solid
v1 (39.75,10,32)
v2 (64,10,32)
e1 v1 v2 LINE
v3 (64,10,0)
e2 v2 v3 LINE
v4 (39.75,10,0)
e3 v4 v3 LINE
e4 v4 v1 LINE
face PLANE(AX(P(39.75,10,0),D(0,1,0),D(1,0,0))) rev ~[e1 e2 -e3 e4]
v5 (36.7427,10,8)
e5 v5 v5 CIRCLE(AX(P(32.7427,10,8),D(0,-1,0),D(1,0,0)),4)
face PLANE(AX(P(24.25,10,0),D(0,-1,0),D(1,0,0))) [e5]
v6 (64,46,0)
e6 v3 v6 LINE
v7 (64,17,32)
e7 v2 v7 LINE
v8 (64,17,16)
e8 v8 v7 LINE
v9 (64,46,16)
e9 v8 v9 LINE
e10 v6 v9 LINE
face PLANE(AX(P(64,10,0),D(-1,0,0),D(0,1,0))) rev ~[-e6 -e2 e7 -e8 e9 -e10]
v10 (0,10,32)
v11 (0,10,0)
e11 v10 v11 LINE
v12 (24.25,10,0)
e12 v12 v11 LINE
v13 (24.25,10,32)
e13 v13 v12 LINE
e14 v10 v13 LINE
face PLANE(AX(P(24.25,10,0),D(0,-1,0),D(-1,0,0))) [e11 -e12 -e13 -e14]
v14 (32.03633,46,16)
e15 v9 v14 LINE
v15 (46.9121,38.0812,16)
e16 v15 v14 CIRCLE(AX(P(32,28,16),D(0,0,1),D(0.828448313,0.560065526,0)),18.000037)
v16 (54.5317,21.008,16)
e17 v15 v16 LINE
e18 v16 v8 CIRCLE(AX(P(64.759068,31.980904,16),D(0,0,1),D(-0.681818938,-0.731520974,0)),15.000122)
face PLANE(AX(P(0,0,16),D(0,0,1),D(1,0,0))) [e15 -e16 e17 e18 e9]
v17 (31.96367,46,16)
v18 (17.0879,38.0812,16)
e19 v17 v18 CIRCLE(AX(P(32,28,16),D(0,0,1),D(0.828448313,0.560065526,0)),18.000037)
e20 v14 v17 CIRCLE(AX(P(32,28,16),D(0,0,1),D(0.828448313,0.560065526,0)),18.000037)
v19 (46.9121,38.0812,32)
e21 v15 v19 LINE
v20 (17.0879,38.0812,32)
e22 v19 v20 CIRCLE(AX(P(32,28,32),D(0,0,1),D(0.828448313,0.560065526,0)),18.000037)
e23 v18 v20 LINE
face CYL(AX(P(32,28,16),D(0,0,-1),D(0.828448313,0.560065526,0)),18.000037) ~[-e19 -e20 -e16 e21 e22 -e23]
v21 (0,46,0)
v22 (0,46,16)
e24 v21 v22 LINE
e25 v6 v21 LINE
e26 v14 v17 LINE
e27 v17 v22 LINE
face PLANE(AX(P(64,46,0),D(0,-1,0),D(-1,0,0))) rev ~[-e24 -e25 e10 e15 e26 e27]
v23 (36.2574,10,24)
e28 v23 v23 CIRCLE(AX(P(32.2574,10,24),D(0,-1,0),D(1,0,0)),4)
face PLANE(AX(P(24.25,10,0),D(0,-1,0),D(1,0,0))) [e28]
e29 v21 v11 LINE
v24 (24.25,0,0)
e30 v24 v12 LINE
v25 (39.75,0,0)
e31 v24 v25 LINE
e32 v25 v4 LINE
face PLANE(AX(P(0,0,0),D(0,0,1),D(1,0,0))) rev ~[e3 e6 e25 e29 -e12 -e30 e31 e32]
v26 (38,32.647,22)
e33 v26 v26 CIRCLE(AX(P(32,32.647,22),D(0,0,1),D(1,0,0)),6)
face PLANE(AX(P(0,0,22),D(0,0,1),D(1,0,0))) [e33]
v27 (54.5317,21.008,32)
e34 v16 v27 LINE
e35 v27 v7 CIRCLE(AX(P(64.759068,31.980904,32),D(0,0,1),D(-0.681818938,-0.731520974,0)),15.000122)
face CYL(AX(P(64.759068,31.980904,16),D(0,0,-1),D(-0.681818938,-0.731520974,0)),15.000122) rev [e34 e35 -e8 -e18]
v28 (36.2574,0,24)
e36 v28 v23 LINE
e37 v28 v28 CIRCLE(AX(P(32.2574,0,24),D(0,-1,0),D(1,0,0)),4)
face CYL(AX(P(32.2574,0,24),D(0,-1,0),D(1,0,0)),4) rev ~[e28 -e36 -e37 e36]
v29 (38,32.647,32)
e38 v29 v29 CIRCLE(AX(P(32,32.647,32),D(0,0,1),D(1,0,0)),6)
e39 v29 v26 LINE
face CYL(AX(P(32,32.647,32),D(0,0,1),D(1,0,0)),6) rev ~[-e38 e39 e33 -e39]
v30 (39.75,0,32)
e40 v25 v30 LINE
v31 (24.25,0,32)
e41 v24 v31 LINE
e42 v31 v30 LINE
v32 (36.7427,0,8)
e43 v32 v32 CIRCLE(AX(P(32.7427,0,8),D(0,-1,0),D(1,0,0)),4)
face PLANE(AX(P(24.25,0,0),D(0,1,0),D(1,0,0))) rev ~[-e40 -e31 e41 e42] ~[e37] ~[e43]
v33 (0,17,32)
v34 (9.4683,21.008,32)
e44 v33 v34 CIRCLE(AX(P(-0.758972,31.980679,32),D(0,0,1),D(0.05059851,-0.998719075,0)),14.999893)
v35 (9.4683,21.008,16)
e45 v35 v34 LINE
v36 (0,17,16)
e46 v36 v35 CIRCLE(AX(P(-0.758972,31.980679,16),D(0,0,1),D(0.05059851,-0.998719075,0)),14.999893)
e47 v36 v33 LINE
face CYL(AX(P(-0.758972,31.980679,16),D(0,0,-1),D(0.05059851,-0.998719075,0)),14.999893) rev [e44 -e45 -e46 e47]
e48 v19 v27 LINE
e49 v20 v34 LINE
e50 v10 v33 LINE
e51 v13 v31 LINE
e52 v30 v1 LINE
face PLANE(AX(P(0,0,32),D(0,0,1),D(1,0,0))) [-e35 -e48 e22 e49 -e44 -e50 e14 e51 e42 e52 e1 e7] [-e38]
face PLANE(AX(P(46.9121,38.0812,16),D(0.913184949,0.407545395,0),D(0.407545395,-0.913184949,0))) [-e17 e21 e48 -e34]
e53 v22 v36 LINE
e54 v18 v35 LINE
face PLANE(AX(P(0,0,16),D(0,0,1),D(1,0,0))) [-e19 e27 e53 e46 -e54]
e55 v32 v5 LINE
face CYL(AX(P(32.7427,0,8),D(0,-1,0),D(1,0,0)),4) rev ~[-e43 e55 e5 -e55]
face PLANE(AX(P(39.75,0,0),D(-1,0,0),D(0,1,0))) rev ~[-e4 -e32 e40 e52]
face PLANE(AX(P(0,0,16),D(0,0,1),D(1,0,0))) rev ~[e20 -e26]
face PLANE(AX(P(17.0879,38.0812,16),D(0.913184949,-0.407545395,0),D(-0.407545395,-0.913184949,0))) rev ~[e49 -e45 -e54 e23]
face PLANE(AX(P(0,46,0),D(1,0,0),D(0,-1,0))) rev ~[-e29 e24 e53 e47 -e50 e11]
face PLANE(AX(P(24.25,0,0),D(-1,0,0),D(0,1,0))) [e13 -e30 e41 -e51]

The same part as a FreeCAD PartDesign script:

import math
import FreeCAD as App
import Part
import Sketcher
from FreeCAD import Vector
Q = App.Units.Quantity

doc = App.newDocument("Part")
body = doc.addObject("PartDesign::Body", "Body")

# Sketch on XY plane
sketch1 = body.newObject("Sketcher::SketchObject", "Sketch")
sketch1.AttachmentSupport = (doc.getObject("XY_Plane"), [""])
sketch1.MapMode = "FlatFace"
sketch1.addGeometry([
    Part.LineSegment(Vector(24.25, 10, 0), Vector(24.25, 0, 0)),  # 0
    Part.LineSegment(Vector(24.25, 0, 0), Vector(39.75, 0, 0)),  # 1
    Part.LineSegment(Vector(39.75, 0, 0), Vector(39.75, 10, 0)),  # 2
    Part.LineSegment(Vector(39.75, 10, 0), Vector(64, 10, 0)),  # 3
    Part.LineSegment(Vector(64, 10, 0), Vector(64, 46, 0)),  # 4
    Part.LineSegment(Vector(64, 46, 0), Vector(0, 46, 0)),  # 5
    Part.LineSegment(Vector(0, 46, 0), Vector(0, 10, 0)),  # 6
    Part.LineSegment(Vector(0, 10, 0), Vector(24.25, 10, 0)),  # 7
], False)
sketch1.addConstraint([
    Sketcher.Constraint("Coincident", 0, 2, 1, 1),
    Sketcher.Constraint("Coincident", 1, 2, 2, 1),
    Sketcher.Constraint("Coincident", 2, 2, 3, 1),
    Sketcher.Constraint("Coincident", 3, 2, 4, 1),
    Sketcher.Constraint("Coincident", 4, 2, 5, 1),
    Sketcher.Constraint("Coincident", 5, 2, 6, 1),
    Sketcher.Constraint("Coincident", 6, 2, 7, 1),
    Sketcher.Constraint("Coincident", 7, 2, 0, 1),
    Sketcher.Constraint("Vertical", 0),
    Sketcher.Constraint("Horizontal", 1),
    Sketcher.Constraint("Vertical", 2),
    Sketcher.Constraint("Horizontal", 3),
    Sketcher.Constraint("Vertical", 4),
    Sketcher.Constraint("Horizontal", 5),
    Sketcher.Constraint("Vertical", 6),
    Sketcher.Constraint("Horizontal", 7),
    Sketcher.Constraint("PointOnObject", 0, 2, -1),
    Sketcher.Constraint("PointOnObject", 5, 2, -2),
    Sketcher.Constraint("Horizontal", 3, 2, 6, 2),
    Sketcher.Constraint("Equal", 3, 7),
    Sketcher.Constraint("DistanceX", 5, 2, 5, 1, Q("64 mm")),
    Sketcher.Constraint("DistanceY", 0, 2, 0, 1, Q("10 mm")),
    Sketcher.Constraint("DistanceX", 3, 1, 3, 2, Q("24.25 mm")),
    Sketcher.Constraint("DistanceY", 4, 1, 4, 2, Q("36 mm")),
])
pad1 = body.newObject("PartDesign::Pad", "Pad")
pad1.Profile = sketch1
pad1.Length = 16

# Sketch on XY plane
sketch2 = body.newObject("Sketcher::SketchObject", "Sketch001")
sketch2.AttachmentSupport = (doc.getObject("XY_Plane"), [""])
sketch2.MapMode = "FlatFace"
sketch2.AttachmentOffset = App.Placement(Vector(0, 0, 16), App.Rotation())
sketch2.addGeometry([
    Part.LineSegment(Vector(0, 10, 0), Vector(24.25, 10, 0)),  # 0
    Part.LineSegment(Vector(24.25, 10, 0), Vector(24.25, 0, 0)),  # 1
    Part.LineSegment(Vector(24.25, 0, 0), Vector(39.75, 0, 0)),  # 2
    Part.LineSegment(Vector(39.75, 0, 0), Vector(39.75, 10, 0)),  # 3
    Part.LineSegment(Vector(39.75, 10, 0), Vector(64, 10, 0)),  # 4
    Part.LineSegment(Vector(64, 10, 0), Vector(64, 17, 0)),  # 5
    Part.ArcOfCircle(Part.Circle(Vector(64.759, 31.9808, 0), Vector(0, 0, 1), 15), math.radians(-132.986028), math.radians(-92.900402)),  # 6
    Part.LineSegment(Vector(54.5317, 21.008, 0), Vector(46.9121, 38.0812, 0)),  # 7
    Part.ArcOfCircle(Part.Circle(Vector(32, 28, 0), Vector(0, 0, 1), 18.000037), math.radians(34.060329), math.radians(145.939671)),  # 8
    Part.LineSegment(Vector(17.0879, 38.0812, 0), Vector(9.4683, 21.008, 0)),  # 9
    Part.ArcOfCircle(Part.Circle(Vector(-0.759, 31.9808, 0), Vector(0, 0, 1), 15.000015), math.radians(-87.099598), math.radians(-47.013972)),  # 10
    Part.LineSegment(Vector(0, 17, 0), Vector(0, 10, 0)),  # 11
], False)
sketch2.addConstraint([
    Sketcher.Constraint("Coincident", 0, 2, 1, 1),
    Sketcher.Constraint("Coincident", 1, 2, 2, 1),
    Sketcher.Constraint("Coincident", 2, 2, 3, 1),
    Sketcher.Constraint("Coincident", 3, 2, 4, 1),
    Sketcher.Constraint("Coincident", 4, 2, 5, 1),
    Sketcher.Constraint("Coincident", 5, 2, 6, 2),
    Sketcher.Constraint("Coincident", 6, 1, 7, 1),
    Sketcher.Constraint("Coincident", 7, 2, 8, 1),
    Sketcher.Constraint("Coincident", 8, 2, 9, 1),
    Sketcher.Constraint("Coincident", 9, 2, 10, 2),
    Sketcher.Constraint("Coincident", 10, 1, 11, 1),
    Sketcher.Constraint("Coincident", 11, 2, 0, 1),
    Sketcher.Constraint("Horizontal", 0),
    Sketcher.Constraint("Vertical", 1),
    Sketcher.Constraint("Horizontal", 2),
    Sketcher.Constraint("Vertical", 3),
    Sketcher.Constraint("Horizontal", 4),
    Sketcher.Constraint("Vertical", 5),
    Sketcher.Constraint("Vertical", 11),
    Sketcher.Constraint("Equal", 6, 10),
    Sketcher.Constraint("PointOnObject", 1, 2, -1),
    Sketcher.Constraint("PointOnObject", 10, 1, -2),
    Sketcher.Constraint("Horizontal", 6, 3, 10, 3),
    Sketcher.Constraint("Horizontal", 0, 2, 3, 2),
    Sketcher.Constraint("Horizontal", 7, 2, 8, 2),
    Sketcher.Constraint("Horizontal", 6, 1, 9, 2),
    Sketcher.Constraint("Horizontal", 5, 2, 10, 1),
    Sketcher.Constraint("Equal", 0, 4),
    Sketcher.Constraint("Equal", 7, 9),
    Sketcher.Constraint("Radius", 6, Q("15 mm")),
    Sketcher.Constraint("DistanceY", 5, 1, 5, 2, Q("7 mm")),
    Sketcher.Constraint("Radius", 8, Q("18 mm")),
    Sketcher.Constraint("DistanceY", 1, 2, 1, 1, Q("10 mm")),
    Sketcher.Constraint("DistanceX", 2, 1, 2, 2, Q("15.5 mm")),
    Sketcher.Constraint("DistanceX", -1, 1, 8, 3, Q("32 mm")),
    Sketcher.Constraint("DistanceY", -1, 1, 8, 3, Q("28 mm")),
    Sketcher.Constraint("Angle", 7, Q("114.0507 deg")),
    Sketcher.Constraint("DistanceX", -1, 1, 6, 3, Q("64.759 mm")),
    Sketcher.Constraint("DistanceY", -1, 1, 6, 1, Q("21.008 mm")),
])
pad2 = body.newObject("PartDesign::Pad", "Pad001")
pad2.Profile = sketch2
pad2.Length = 16

# Sketch on XY plane
sketch3 = body.newObject("Sketcher::SketchObject", "Sketch002")
sketch3.AttachmentSupport = (doc.getObject("XY_Plane"), [""])
sketch3.MapMode = "FlatFace"
sketch3.AttachmentOffset = App.Placement(Vector(0, 0, 32), App.Rotation())
sketch3.addGeometry(Part.Circle(Vector(32, 32.647, 0), Vector(0, 0, 1), 6), False)
sketch3.addConstraint([
    Sketcher.Constraint("Diameter", 0, Q("12 mm")),
    Sketcher.Constraint("DistanceX", -1, 1, 0, 3, Q("32 mm")),
    Sketcher.Constraint("DistanceY", -1, 1, 0, 3, Q("32.647 mm")),
])
pocket1 = body.newObject("PartDesign::Pocket", "Pocket")
pocket1.Profile = sketch3
pocket1.Length = 10

# Sketch on XZ plane
sketch4 = body.newObject("Sketcher::SketchObject", "Sketch003")
sketch4.AttachmentSupport = (doc.getObject("XZ_Plane"), [""])
sketch4.MapMode = "FlatFace"
sketch4.addGeometry([
    Part.Circle(Vector(32.2574, 24, 0), Vector(0, 0, 1), 4),
    Part.Circle(Vector(32.7427, 8, 0), Vector(0, 0, 1), 4),
], False)
sketch4.addConstraint([
    Sketcher.Constraint("Equal", 0, 1),
    Sketcher.Constraint("Diameter", 0, Q("8 mm")),
    Sketcher.Constraint("DistanceY", -1, 1, 1, 3, Q("8 mm")),
    Sketcher.Constraint("DistanceY", -1, 1, 0, 3, Q("24 mm")),
    Sketcher.Constraint("DistanceX", -1, 1, 0, 3, Q("32.2574 mm")),
    Sketcher.Constraint("DistanceX", -1, 1, 1, 3, Q("32.7427 mm")),
])
pocket2 = body.newObject("PartDesign::Pocket", "Pocket001")
pocket2.Profile = sketch4
pocket2.Length = 10

doc.recompute()
